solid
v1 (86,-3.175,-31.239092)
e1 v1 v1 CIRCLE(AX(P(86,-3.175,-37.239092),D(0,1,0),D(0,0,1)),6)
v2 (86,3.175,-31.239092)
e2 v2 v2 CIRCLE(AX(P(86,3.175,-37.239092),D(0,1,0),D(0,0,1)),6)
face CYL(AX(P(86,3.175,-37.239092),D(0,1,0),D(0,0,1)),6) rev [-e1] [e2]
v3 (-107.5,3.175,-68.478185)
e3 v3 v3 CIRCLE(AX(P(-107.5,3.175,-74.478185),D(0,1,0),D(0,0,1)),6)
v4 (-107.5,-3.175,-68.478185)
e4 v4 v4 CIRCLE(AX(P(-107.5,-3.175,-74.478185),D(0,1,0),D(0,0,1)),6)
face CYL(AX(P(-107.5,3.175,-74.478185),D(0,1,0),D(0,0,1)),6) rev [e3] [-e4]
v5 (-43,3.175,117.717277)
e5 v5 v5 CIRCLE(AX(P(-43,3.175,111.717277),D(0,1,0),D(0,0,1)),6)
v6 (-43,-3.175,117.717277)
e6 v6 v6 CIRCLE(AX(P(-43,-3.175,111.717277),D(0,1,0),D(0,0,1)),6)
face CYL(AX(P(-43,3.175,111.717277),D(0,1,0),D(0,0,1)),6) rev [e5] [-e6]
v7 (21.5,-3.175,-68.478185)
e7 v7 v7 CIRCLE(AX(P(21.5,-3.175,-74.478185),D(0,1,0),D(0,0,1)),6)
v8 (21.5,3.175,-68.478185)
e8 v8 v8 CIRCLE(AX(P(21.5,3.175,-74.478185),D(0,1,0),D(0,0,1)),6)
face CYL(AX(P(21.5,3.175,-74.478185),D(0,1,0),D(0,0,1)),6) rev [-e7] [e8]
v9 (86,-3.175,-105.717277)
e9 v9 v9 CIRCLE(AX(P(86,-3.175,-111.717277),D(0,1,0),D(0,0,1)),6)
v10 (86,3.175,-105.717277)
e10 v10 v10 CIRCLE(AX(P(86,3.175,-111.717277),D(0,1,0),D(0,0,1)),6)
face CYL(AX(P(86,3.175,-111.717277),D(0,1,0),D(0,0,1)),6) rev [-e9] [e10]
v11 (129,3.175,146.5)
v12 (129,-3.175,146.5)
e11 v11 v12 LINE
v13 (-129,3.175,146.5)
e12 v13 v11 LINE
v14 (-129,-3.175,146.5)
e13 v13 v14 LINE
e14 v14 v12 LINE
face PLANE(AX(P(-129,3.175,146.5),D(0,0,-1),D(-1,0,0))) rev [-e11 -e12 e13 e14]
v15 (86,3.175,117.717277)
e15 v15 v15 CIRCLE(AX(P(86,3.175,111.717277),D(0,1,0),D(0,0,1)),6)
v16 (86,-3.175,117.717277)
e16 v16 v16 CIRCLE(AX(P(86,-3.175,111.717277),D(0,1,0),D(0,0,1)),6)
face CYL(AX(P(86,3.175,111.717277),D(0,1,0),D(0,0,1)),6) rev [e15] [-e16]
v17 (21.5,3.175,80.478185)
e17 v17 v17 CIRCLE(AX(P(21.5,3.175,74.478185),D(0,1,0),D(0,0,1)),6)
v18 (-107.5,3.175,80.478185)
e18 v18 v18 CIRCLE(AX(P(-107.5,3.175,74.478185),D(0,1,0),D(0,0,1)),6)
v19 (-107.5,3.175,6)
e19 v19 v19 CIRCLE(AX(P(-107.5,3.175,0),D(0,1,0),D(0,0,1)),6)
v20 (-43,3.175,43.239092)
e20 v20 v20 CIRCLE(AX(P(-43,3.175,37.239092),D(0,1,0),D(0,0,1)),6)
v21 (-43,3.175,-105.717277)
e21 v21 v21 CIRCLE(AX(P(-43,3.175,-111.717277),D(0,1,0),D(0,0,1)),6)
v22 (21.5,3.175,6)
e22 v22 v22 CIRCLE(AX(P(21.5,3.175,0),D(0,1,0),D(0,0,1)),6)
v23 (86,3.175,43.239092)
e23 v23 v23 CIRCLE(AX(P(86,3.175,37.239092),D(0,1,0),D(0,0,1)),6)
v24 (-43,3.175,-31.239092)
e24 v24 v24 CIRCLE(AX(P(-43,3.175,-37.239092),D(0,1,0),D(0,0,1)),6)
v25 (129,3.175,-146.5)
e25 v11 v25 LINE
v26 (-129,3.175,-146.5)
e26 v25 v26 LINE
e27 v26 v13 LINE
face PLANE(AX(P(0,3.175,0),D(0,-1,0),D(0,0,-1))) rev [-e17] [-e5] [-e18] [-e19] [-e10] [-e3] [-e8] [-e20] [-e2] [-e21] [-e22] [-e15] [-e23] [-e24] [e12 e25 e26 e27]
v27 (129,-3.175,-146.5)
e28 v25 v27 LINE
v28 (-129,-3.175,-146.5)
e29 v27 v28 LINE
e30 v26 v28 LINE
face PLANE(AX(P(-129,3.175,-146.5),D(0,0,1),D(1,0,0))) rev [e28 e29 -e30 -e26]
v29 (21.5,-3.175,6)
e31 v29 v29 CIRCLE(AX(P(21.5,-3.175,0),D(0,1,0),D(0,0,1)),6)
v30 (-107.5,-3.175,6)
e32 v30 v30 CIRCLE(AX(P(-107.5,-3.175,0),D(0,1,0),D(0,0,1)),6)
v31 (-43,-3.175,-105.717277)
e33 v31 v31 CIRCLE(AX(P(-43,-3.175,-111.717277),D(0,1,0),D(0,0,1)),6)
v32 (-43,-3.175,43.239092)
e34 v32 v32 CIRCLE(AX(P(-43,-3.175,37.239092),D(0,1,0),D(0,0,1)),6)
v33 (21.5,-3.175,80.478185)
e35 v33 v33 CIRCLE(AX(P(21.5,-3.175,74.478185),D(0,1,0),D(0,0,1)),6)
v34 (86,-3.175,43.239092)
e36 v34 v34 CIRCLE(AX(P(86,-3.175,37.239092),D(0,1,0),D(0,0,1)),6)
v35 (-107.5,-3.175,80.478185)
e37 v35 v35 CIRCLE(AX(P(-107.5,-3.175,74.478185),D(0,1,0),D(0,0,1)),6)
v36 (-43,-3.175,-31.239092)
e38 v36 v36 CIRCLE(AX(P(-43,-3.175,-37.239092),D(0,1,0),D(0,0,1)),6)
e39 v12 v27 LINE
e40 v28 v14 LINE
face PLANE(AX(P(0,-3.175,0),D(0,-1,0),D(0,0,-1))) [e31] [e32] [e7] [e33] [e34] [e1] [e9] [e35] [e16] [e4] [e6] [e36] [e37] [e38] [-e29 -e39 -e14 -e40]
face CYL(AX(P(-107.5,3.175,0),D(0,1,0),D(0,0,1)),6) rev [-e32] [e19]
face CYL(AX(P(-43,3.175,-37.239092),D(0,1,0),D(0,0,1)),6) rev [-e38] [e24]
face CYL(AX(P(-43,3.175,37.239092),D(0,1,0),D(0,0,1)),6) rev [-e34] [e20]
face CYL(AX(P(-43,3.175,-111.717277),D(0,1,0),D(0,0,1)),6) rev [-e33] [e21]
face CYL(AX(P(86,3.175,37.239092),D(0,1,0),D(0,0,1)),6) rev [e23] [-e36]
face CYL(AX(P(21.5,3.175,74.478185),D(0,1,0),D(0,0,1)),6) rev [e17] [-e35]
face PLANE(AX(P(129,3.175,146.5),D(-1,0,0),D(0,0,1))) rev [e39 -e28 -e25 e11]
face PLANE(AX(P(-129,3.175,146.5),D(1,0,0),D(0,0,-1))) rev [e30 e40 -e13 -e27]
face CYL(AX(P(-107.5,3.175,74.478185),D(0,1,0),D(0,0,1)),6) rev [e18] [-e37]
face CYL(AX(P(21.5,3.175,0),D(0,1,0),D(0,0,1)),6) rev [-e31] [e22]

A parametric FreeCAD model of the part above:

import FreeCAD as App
import Part
import Sketcher
from FreeCAD import Vector


def add_polygon(sketch, points):
    """Adds a closed chain of lines whose ends are joined by coincident constraints."""
    first, n = sketch.GeometryCount, len(points)
    for a, b in zip(points, points[1:] + points[:1]):
        sketch.addGeometry(Part.LineSegment(App.Vector(*a, 0), App.Vector(*b, 0)), False)
    for i in range(n):
        sketch.addConstraint(Sketcher.Constraint("Coincident", first + i, 2, first + (i + 1) % n, 1))

doc = App.newDocument("Part")
params = doc.addObject("Spreadsheet::Sheet", "Params")
for row, (alias, value) in enumerate([
    ("sketch1_width", "258 mm"),
    ("sketch1_height", "293 mm"),
    ("pad1_length", "6.35 mm"),
    ("sketch2_diameter", "12 mm"),
    ("hole_diameter", "12 mm"),
], start=1):
    params.set(f"A{row}", alias)
    params.set(f"B{row}", "=" + value)
    params.setAlias(f"B{row}", alias)

body = doc.addObject("PartDesign::Body", "Body")

# Sketch on XZ plane
sketch1 = body.newObject("Sketcher::SketchObject", "Sketch")
sketch1.AttachmentSupport = (doc.getObject("XZ_Plane"), [""])
sketch1.MapMode = "FlatFace"
add_polygon(sketch1, [(-129, -146), (-129, 146), (129, 146), (129, -146)])  # lines 0-3
sketch1.addConstraint(Sketcher.Constraint("Vertical", 0))
sketch1.addConstraint(Sketcher.Constraint("Horizontal", 1))
sketch1.addConstraint(Sketcher.Constraint("Vertical", 2))
sketch1.addConstraint(Sketcher.Constraint("Horizontal", 3))
sketch1.addConstraint(Sketcher.Constraint("Symmetric", 0, 2, 2, 2, -1, 1))
sketch1.addConstraint(Sketcher.Constraint("DistanceX", 1, 1, 1, 2, 258.0))
sketch1.addConstraint(Sketcher.Constraint("DistanceY", 0, 1, 0, 2, 293.0))
sketch1.setExpression("Constraints[9]", "Params.sketch1_width")
sketch1.setExpression("Constraints[10]", "Params.sketch1_height")
pad1 = body.newObject("PartDesign::Pad", "Pad")
pad1.Profile = sketch1
pad1.setExpression("Length", "Params.pad1_length")
pad1.Midplane = True

# Sketch on XZ plane
sketch2 = body.newObject("Sketcher::SketchObject", "Sketch001")
sketch2.AttachmentSupport = (doc.getObject("XZ_Plane"), [""])
sketch2.MapMode = "FlatFace"
sketch2.AttachmentOffset = App.Placement(Vector(0, 0, -3.175), App.Rotation())
sketch2.addGeometry(Part.Circle(Vector(-108, 0, 0), Vector(0, 0, 1), 6), False)
sketch2.addGeometry(Part.Circle(Vector(-43, 37, 0), Vector(0, 0, 1), 6), False)
sketch2.addGeometry(Part.Circle(Vector(-43, -37, 0), Vector(0, 0, 1), 6), False)
sketch2.addGeometry(Part.Circle(Vector(86, -37, 0), Vector(0, 0, 1), 6), False)
sketch2.addGeometry(Part.Circle(Vector(22, 0, 0), Vector(0, 0, 1), 6), False)
sketch2.addGeometry(Part.Circle(Vector(86, 37, 0), Vector(0, 0, 1), 6), False)
sketch2.addGeometry(Part.Circle(Vector(-108, -74, 0), Vector(0, 0, 1), 6), False)
sketch2.addGeometry(Part.Circle(Vector(-43, -112, 0), Vector(0, 0, 1), 6), False)
sketch2.addGeometry(Part.Circle(Vector(22, -74, 0), Vector(0, 0, 1), 6), False)
sketch2.addGeometry(Part.Circle(Vector(86, -112, 0), Vector(0, 0, 1), 6), False)
sketch2.addGeometry(Part.Circle(Vector(-108, 74, 0), Vector(0, 0, 1), 6), False)
sketch2.addGeometry(Part.Circle(Vector(-43, 112, 0), Vector(0, 0, 1), 6), False)
sketch2.addGeometry(Part.Circle(Vector(22, 74, 0), Vector(0, 0, 1), 6), False)
sketch2.addGeometry(Part.Circle(Vector(86, 112, 0), Vector(0, 0, 1), 6), False)
sketch2.addConstraint(Sketcher.Constraint("Equal", 0, 1))
sketch2.addConstraint(Sketcher.Constraint("Equal", 1, 2))
sketch2.addConstraint(Sketcher.Constraint("Equal", 2, 3))
sketch2.addConstraint(Sketcher.Constraint("Equal", 3, 4))
sketch2.addConstraint(Sketcher.Constraint("Equal", 4, 5))
sketch2.addConstraint(Sketcher.Constraint("Equal", 5, 6))
sketch2.addConstraint(Sketcher.Constraint("Equal", 6, 7))
sketch2.addConstraint(Sketcher.Constraint("Equal", 7, 8))
sketch2.addConstraint(Sketcher.Constraint("Equal", 8, 9))
sketch2.addConstraint(Sketcher.Constraint("Equal", 9, 10))
sketch2.addConstraint(Sketcher.Constraint("Equal", 10, 11))
sketch2.addConstraint(Sketcher.Constraint("Equal", 11, 12))
sketch2.addConstraint(Sketcher.Constraint("Equal", 12, 13))
sketch2.addConstraint(Sketcher.Constraint("Symmetric", 1, 3, 2, 3, -1))
sketch2.addConstraint(Sketcher.Constraint("Symmetric", 3, 3, 5, 3, -1))
sketch2.addConstraint(Sketcher.Constraint("Symmetric", 6, 3, 10, 3, -1))
sketch2.addConstraint(Sketcher.Constraint("Symmetric", 7, 3, 11, 3, -1))
sketch2.addConstraint(Sketcher.Constraint("Symmetric", 8, 3, 12, 3, -1))
sketch2.addConstraint(Sketcher.Constraint("Symmetric", 9, 3, 13, 3, -1))
sketch2.addConstraint(Sketcher.Constraint("PointOnObject", 0, 3, -1))
sketch2.addConstraint(Sketcher.Constraint("PointOnObject", 4, 3, -1))
sketch2.addConstraint(Sketcher.Constraint("Horizontal", 2, 3, 3, 3))
sketch2.addConstraint(Sketcher.Constraint("Horizontal", 6, 3, 8, 3))
sketch2.addConstraint(Sketcher.Constraint("Horizontal", 7, 3, 9, 3))
sketch2.addConstraint(Sketcher.Constraint("Vertical", 0, 3, 6, 3))
sketch2.addConstraint(Sketcher.Constraint("Vertical", 2, 3, 7, 3))
sketch2.addConstraint(Sketcher.Constraint("Vertical", 4, 3, 8, 3))
sketch2.addConstraint(Sketcher.Constraint("Vertical", 5, 3, 9, 3))
sketch2.addConstraint(Sketcher.Constraint("Diameter", 0, 12.0))
sketch2.addConstraint(Sketcher.Constraint("DistanceX", 1, 3, -1, 1, 43.0))
sketch2.addConstraint(Sketcher.Constraint("DistanceX", -1, 1, 3, 3, 86.0))
sketch2.addConstraint(Sketcher.Constraint("DistanceX", 0, 3, 4, 3, 129.0))
sketch2.addConstraint(Sketcher.Constraint("DistanceX", 0, 3, -1, 1, 107.5))
sketch2.addConstraint(Sketcher.Constraint("DistanceY", 6, 3, 10, 3, 148.956369))
sketch2.addConstraint(Sketcher.Constraint("DistanceY", -1, 1, 1, 3, 37.239092))
sketch2.addConstraint(Sketcher.Constraint("DistanceY", 7, 3, -1, 1, 111.717277))
sketch2.setExpression("Constraints[28]", "Params.sketch2_diameter")
doc.recompute()
hole = body.newObject("PartDesign::Hole", "Hole")
hole.Profile = sketch2
hole.ThreadType = "None"
hole.setExpression("Diameter", "Params.hole_diameter")
hole.DepthType = "ThroughAll"
hole.Reversed = True

doc.recompute()
